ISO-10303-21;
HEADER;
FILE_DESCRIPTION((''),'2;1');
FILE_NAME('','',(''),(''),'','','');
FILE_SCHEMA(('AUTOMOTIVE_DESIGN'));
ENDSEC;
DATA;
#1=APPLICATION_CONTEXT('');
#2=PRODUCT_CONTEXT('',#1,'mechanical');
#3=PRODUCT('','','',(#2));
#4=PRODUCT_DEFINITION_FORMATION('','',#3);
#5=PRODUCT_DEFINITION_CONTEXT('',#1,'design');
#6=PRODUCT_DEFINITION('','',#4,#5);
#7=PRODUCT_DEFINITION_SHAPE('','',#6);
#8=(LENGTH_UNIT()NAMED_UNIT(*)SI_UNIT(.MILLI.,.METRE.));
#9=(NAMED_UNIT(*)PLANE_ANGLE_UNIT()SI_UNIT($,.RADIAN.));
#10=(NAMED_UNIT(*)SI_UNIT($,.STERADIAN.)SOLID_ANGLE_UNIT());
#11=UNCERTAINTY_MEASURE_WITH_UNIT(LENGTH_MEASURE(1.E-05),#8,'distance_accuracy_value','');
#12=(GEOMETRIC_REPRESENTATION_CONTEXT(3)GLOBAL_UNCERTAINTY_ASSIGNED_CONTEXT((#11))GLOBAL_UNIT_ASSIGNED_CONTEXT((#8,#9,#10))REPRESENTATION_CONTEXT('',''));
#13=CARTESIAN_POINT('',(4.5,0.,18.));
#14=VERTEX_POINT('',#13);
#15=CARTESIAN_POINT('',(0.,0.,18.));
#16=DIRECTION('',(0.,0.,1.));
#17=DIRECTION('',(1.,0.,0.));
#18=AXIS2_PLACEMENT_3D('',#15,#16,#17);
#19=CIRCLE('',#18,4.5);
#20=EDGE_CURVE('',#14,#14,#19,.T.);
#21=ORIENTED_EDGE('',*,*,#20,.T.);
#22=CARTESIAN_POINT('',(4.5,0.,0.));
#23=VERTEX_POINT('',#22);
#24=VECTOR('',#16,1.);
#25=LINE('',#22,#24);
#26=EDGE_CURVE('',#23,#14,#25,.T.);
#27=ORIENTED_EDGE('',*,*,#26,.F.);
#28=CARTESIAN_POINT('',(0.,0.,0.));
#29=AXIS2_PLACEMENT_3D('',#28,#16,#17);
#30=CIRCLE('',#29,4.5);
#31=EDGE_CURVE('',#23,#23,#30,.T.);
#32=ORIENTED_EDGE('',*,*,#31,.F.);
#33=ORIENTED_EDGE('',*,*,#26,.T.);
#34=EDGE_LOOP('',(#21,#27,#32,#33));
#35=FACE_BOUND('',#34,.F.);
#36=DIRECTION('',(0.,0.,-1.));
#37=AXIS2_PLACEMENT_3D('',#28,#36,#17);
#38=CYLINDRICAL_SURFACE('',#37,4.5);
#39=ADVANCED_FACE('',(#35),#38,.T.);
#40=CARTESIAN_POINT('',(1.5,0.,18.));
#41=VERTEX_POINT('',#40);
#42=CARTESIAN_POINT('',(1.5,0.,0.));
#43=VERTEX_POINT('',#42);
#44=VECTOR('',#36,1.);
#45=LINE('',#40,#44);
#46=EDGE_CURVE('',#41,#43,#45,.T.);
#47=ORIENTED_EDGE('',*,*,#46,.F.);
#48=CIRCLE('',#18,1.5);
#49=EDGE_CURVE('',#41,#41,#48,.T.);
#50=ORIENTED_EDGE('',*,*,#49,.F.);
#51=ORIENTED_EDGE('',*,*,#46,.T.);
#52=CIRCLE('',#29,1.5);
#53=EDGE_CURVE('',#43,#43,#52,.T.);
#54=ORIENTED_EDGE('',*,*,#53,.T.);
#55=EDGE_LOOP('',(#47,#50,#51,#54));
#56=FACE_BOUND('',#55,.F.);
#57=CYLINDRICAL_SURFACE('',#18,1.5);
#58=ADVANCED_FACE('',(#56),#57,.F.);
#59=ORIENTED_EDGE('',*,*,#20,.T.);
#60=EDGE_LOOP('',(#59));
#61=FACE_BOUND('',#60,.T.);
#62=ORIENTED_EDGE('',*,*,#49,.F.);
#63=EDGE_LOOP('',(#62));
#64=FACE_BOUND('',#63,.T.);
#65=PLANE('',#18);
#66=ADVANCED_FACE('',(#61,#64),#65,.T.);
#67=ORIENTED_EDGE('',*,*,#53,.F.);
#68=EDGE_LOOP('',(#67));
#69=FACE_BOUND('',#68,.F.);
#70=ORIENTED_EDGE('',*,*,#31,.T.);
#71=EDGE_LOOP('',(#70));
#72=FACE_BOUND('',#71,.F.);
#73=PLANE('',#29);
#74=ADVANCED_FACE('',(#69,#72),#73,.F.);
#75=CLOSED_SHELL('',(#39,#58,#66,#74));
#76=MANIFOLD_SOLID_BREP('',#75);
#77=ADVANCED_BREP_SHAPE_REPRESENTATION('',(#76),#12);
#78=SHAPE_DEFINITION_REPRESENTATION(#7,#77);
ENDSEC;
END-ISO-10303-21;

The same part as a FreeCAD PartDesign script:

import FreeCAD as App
import Part
import Sketcher

V = App.Vector
Q = App.Units.Quantity

doc = App.newDocument("Part")
body = doc.addObject("PartDesign::Body", "Body")

# Sketch on XY plane
sketch1 = doc.addObject("Sketcher::SketchObject", "Sketch")
body.addObject(sketch1)
sketch1.AttachmentSupport = (doc.XY_Plane, [""])
sketch1.MapMode = "FlatFace"
sketch1.addGeometry(Part.Circle(V(0, 0, 0), V(0, 0, 1), 4.5), False)
sketch1.addConstraint(Sketcher.Constraint("Coincident", 0, 3, -1, 1))
sketch1.addConstraint(Sketcher.Constraint("Diameter", 0, Q("9 mm")))
pad1 = doc.addObject("PartDesign::Pad", "Pad")
body.addObject(pad1)
pad1.Profile = sketch1
pad1.Length = 18

# Sketch on XY plane
sketch2 = doc.addObject("Sketcher::SketchObject", "Sketch001")
body.addObject(sketch2)
sketch2.AttachmentSupport = (doc.XY_Plane, [""])
sketch2.MapMode = "FlatFace"
sketch2.AttachmentOffset = App.Placement(V(0, 0, 18), App.Rotation())
sketch2.addGeometry(Part.Circle(V(0, 0, 0), V(0, 0, 1), 1.5), False)
sketch2.addConstraint(Sketcher.Constraint("Coincident", 0, 3, -1, 1))
sketch2.addConstraint(Sketcher.Constraint("Diameter", 0, Q("3 mm")))
pocket1 = doc.addObject("PartDesign::Pocket", "Pocket")
body.addObject(pocket1)
pocket1.Profile = sketch2
pocket1.Length = 18

doc.recompute()
